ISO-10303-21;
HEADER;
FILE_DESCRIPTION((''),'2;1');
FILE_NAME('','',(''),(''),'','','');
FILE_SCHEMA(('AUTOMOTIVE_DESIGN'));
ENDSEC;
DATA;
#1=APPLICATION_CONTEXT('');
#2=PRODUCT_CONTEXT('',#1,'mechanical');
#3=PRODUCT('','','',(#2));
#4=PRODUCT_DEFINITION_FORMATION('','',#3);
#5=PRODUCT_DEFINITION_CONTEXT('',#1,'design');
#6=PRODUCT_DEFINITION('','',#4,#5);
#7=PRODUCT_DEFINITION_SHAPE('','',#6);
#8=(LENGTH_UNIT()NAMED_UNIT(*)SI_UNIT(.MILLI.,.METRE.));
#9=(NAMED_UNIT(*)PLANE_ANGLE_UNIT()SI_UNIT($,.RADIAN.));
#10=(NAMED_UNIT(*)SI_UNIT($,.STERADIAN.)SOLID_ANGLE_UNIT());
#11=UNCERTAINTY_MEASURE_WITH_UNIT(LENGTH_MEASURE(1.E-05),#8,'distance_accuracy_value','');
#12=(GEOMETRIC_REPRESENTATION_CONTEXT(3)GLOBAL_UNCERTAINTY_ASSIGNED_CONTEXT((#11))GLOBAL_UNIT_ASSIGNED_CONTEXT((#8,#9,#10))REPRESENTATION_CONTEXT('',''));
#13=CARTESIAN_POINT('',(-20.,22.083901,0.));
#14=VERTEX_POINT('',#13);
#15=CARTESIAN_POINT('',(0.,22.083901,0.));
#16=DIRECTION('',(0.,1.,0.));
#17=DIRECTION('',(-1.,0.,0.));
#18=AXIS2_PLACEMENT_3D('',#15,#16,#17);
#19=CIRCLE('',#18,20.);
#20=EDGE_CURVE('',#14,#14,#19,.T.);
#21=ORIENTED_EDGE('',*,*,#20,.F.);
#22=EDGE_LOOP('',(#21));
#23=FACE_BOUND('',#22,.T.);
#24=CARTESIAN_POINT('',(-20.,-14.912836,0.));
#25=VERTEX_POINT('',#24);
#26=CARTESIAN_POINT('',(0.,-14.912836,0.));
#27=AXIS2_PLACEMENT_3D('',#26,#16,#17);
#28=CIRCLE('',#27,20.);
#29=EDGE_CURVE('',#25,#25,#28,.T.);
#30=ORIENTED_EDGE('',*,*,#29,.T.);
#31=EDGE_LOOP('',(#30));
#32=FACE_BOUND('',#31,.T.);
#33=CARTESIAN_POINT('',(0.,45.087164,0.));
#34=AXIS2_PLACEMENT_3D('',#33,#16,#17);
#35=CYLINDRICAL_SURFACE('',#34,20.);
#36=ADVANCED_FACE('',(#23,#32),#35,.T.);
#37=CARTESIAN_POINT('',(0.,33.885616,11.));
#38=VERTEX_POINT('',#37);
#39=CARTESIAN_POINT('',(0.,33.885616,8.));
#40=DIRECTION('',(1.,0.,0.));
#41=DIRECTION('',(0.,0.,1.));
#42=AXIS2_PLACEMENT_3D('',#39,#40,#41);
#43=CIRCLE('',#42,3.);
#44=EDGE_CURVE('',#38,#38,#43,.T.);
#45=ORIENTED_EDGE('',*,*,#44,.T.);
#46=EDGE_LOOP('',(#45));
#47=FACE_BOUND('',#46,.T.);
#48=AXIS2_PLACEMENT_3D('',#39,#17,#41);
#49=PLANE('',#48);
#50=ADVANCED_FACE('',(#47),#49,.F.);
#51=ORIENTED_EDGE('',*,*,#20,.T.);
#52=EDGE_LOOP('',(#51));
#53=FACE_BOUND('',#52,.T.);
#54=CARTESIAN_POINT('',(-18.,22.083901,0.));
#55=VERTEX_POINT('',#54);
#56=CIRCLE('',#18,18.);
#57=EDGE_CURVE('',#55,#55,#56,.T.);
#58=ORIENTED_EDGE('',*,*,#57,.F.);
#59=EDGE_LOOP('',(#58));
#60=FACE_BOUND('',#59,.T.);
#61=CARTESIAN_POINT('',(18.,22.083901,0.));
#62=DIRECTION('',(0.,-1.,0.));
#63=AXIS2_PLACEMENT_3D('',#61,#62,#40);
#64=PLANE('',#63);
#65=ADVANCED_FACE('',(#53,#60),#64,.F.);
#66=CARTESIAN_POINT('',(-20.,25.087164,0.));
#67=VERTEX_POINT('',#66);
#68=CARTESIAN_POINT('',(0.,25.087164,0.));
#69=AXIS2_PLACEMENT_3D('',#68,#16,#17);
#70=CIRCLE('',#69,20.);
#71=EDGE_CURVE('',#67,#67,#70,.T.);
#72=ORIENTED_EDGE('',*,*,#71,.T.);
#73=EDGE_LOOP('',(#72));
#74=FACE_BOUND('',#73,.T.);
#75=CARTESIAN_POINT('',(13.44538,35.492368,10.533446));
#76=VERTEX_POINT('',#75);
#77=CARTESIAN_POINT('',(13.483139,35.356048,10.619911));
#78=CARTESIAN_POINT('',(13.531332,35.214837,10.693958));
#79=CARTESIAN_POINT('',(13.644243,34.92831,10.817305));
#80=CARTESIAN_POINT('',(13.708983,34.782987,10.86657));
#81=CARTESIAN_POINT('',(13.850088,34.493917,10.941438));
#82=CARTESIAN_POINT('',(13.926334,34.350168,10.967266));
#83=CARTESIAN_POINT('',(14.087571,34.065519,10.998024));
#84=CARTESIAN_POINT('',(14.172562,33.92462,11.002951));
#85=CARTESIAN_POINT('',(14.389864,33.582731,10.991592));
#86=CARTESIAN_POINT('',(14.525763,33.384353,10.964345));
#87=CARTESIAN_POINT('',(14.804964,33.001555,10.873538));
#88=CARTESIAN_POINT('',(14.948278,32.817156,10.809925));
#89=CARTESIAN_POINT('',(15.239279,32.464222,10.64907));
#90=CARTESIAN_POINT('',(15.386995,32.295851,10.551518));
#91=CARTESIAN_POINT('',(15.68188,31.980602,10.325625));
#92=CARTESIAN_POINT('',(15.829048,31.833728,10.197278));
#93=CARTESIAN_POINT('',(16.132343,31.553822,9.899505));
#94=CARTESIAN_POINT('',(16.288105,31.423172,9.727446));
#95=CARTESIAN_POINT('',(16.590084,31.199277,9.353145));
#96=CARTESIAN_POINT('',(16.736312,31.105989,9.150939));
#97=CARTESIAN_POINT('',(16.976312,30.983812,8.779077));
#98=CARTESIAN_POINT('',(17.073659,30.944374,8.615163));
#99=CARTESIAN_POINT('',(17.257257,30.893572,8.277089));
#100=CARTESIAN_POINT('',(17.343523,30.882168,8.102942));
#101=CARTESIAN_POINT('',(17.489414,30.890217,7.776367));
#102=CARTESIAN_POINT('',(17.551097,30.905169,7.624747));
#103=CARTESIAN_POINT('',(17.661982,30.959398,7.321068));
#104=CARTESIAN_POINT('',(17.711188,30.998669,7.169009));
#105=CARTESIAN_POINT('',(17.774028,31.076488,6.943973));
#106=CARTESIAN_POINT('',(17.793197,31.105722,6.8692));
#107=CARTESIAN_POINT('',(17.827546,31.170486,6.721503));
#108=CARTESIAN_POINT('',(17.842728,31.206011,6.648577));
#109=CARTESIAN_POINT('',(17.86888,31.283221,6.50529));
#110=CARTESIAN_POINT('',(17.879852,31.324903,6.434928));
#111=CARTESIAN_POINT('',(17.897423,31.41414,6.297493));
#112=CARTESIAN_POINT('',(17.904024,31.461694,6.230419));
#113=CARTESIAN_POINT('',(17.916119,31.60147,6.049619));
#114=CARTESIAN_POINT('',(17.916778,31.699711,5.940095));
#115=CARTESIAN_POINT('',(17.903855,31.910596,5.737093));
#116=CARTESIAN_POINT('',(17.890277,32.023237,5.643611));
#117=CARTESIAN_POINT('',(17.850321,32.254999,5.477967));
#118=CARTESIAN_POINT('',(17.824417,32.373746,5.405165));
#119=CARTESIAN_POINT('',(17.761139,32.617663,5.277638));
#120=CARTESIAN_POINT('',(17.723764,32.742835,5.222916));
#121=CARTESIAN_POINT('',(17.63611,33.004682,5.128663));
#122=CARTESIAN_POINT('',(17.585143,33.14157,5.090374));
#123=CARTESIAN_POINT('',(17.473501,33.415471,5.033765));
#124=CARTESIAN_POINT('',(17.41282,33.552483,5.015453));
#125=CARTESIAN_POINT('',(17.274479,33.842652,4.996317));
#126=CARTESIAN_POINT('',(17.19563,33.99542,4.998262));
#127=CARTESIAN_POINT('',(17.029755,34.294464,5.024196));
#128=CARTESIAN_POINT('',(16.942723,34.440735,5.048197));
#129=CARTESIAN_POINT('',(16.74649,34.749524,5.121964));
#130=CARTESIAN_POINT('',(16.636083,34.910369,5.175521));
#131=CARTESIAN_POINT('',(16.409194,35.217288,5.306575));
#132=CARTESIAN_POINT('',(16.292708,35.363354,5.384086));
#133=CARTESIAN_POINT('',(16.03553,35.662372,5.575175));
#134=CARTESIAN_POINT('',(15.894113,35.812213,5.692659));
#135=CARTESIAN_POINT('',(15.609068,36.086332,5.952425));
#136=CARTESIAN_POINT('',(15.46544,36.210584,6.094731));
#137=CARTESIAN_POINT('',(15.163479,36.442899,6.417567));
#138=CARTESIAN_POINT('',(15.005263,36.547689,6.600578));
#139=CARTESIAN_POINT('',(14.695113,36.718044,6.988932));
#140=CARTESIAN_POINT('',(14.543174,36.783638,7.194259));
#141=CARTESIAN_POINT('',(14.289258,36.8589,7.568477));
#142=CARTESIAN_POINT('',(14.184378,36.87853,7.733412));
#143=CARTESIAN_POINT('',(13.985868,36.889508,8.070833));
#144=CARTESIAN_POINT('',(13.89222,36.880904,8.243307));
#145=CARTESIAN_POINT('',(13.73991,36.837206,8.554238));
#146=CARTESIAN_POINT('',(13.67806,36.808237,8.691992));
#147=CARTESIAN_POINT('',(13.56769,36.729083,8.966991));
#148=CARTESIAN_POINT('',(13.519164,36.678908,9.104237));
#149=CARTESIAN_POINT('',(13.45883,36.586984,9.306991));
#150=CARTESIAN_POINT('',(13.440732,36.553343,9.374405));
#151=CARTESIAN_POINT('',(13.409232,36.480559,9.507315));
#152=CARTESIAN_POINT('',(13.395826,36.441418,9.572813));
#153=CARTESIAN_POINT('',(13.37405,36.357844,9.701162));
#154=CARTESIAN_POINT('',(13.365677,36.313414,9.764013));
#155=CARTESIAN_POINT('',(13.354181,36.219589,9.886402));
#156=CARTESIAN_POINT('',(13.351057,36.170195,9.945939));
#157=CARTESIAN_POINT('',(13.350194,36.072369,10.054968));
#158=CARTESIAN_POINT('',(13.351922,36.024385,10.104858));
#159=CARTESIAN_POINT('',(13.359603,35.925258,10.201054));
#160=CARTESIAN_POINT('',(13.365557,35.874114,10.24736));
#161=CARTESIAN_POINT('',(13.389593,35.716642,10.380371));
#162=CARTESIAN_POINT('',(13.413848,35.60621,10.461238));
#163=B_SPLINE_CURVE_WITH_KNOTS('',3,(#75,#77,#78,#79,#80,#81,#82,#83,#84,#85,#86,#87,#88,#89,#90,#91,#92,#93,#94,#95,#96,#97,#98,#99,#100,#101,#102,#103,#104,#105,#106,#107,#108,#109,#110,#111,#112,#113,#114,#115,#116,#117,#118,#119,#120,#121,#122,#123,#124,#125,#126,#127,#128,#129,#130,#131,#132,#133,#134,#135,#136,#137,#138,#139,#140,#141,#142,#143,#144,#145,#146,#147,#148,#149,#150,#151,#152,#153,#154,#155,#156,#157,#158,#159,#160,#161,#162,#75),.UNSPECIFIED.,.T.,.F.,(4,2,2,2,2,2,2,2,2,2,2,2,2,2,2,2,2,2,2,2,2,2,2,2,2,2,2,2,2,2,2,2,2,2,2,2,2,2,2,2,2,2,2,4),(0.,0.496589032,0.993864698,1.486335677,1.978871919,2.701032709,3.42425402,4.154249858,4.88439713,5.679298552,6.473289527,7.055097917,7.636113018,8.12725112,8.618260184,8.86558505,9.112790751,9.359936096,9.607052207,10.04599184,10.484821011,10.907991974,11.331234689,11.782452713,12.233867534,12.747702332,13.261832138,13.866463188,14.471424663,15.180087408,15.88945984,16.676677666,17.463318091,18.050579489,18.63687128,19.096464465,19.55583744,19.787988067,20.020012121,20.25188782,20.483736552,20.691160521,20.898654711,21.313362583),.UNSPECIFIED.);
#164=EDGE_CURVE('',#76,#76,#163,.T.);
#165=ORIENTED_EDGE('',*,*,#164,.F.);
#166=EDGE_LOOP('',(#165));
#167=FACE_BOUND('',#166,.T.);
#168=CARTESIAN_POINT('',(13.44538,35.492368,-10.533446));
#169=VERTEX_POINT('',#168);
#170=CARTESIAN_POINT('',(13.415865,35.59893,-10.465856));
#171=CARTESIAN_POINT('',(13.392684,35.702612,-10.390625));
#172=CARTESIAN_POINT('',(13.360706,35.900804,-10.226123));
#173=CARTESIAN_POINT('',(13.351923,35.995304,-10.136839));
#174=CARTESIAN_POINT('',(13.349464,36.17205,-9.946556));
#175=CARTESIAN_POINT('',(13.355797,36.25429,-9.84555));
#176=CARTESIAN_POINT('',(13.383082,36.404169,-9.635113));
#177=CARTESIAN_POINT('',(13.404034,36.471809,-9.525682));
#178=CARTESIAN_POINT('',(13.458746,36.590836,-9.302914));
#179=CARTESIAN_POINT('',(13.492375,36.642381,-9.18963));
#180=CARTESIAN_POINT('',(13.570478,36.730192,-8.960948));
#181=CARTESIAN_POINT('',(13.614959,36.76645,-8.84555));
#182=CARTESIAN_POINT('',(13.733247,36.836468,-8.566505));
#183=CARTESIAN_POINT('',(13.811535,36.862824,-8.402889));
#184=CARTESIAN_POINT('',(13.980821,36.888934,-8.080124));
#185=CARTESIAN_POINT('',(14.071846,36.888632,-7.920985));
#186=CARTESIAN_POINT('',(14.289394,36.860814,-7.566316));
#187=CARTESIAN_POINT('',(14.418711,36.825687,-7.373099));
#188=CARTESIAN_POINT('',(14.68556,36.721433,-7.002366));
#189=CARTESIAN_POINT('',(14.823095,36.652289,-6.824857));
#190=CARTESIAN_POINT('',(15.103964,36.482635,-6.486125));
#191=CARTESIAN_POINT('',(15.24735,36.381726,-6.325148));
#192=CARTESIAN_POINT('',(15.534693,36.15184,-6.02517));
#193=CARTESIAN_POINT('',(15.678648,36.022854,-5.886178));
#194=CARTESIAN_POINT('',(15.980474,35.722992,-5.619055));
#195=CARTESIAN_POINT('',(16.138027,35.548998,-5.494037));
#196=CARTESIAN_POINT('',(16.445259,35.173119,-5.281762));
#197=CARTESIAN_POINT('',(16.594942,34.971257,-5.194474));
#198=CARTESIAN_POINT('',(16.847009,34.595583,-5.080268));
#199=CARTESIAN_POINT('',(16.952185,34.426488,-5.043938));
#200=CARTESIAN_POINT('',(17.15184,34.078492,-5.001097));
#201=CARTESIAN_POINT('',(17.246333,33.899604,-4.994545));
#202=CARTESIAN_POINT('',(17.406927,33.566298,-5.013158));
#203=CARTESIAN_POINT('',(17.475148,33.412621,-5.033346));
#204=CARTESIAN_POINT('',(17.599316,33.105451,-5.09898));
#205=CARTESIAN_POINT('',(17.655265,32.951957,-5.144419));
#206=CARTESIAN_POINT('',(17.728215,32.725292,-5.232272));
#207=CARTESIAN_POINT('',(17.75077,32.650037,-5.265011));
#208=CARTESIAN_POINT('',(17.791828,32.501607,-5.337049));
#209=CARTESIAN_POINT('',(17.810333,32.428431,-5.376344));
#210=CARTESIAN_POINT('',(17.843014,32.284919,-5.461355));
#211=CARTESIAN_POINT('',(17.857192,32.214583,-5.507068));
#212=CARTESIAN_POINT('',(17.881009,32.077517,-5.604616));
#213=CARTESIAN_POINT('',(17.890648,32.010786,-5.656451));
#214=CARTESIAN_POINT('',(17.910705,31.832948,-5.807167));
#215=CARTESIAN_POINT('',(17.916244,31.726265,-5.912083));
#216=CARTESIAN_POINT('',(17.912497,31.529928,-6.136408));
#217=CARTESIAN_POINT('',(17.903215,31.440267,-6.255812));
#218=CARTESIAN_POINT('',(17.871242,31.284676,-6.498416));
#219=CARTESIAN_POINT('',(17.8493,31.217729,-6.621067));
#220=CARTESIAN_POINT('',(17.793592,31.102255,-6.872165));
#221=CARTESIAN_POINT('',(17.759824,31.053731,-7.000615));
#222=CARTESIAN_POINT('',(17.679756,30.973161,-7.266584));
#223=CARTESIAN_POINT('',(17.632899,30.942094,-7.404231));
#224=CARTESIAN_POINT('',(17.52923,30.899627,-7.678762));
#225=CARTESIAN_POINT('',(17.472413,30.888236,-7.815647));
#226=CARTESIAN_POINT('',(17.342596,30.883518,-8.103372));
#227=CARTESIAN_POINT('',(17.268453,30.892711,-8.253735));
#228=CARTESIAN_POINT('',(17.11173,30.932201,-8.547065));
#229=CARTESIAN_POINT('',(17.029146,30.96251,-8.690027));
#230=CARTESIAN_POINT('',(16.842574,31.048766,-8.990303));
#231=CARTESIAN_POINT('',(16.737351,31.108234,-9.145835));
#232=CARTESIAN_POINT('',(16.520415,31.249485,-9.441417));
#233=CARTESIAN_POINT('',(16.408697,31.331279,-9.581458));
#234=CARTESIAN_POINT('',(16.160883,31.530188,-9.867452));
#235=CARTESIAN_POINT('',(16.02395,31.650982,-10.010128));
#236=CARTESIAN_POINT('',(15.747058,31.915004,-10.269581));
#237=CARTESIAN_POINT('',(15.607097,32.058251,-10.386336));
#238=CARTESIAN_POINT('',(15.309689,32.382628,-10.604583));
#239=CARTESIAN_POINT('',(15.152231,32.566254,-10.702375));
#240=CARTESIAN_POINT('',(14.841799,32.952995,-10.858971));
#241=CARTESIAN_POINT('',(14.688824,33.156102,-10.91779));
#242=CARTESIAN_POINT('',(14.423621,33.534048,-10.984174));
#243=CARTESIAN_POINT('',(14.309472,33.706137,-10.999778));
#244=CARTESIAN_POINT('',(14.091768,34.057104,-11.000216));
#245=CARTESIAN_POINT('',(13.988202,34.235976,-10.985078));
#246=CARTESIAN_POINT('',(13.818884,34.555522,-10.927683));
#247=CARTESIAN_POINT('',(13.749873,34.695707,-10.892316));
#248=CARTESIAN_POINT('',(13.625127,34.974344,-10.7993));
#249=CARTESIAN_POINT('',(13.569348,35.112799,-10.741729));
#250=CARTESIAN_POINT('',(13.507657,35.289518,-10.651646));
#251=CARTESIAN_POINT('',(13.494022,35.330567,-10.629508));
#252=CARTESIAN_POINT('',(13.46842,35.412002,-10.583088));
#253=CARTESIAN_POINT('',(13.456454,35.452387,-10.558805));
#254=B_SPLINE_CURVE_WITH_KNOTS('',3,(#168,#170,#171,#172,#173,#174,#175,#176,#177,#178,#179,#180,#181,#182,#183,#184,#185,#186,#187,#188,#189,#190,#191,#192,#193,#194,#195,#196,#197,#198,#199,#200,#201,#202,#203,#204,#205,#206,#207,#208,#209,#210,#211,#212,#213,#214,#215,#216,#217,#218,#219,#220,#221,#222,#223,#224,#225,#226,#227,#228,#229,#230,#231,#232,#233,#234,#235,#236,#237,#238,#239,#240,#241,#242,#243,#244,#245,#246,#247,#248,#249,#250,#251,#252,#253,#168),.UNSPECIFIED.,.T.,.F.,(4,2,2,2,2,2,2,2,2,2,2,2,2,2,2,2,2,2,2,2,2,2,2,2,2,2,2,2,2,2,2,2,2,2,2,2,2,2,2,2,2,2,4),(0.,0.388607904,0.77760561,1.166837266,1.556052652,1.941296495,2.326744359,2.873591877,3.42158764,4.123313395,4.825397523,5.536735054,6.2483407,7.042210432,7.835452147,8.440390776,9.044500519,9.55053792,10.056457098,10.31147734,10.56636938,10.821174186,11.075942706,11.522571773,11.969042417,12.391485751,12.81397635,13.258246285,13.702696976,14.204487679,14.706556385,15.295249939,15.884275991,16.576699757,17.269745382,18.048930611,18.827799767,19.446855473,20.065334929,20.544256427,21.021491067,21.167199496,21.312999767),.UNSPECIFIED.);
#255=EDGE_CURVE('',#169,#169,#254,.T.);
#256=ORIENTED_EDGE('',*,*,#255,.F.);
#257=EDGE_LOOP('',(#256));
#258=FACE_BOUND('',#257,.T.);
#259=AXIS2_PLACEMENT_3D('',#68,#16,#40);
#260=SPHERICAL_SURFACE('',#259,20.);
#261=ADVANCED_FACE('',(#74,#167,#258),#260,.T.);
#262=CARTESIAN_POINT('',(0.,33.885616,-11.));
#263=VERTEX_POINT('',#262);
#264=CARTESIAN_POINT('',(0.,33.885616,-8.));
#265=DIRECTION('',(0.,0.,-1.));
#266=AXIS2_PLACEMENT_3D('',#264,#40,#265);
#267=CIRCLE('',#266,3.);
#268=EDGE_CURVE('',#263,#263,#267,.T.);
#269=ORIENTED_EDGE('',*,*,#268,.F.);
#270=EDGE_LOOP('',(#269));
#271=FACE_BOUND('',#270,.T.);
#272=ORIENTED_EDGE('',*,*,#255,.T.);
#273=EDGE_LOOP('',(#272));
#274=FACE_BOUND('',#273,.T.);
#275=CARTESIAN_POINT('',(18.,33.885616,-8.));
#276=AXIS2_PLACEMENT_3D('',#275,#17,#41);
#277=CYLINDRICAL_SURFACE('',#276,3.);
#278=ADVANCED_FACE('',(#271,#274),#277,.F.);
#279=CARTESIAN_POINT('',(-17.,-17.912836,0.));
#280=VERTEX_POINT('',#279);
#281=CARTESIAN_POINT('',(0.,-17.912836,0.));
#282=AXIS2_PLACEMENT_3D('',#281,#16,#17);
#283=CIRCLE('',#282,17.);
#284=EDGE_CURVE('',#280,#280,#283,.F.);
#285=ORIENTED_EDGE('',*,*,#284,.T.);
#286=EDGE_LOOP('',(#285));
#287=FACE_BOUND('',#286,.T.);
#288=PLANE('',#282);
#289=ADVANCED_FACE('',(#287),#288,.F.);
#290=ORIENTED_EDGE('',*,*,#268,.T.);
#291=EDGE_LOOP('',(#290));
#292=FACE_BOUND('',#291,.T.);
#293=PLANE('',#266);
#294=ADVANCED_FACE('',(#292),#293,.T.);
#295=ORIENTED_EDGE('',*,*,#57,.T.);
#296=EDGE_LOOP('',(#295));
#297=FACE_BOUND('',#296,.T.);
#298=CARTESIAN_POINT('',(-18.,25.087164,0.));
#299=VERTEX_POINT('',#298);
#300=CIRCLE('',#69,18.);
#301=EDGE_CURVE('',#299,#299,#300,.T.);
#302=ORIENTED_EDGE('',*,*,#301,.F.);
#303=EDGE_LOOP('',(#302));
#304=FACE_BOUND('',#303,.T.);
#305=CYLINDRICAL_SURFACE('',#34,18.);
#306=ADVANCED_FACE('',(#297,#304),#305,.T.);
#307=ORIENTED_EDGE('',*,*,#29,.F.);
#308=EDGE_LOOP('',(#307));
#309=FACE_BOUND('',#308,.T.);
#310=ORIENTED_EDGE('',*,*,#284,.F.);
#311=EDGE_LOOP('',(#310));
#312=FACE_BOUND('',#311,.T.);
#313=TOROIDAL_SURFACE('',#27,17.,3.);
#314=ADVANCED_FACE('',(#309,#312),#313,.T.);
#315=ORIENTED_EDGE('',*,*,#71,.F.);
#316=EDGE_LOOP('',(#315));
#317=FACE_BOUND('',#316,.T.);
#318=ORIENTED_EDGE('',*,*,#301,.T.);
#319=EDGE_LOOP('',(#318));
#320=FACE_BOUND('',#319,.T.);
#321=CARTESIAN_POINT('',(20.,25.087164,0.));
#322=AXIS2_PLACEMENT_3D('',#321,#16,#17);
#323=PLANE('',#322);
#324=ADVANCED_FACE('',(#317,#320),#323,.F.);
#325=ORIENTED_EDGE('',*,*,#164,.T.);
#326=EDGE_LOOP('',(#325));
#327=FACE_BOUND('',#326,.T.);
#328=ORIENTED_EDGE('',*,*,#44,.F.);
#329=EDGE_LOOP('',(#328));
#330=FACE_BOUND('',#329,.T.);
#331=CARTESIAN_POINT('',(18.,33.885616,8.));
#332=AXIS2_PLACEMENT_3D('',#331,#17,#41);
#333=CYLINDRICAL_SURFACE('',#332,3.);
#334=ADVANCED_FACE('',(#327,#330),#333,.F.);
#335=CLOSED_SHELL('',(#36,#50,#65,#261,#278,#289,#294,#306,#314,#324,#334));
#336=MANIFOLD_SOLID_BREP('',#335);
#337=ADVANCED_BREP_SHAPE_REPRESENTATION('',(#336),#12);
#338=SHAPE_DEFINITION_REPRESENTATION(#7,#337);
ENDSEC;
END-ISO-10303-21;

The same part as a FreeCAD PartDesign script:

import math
import FreeCAD as App
import Part
import Sketcher

V = App.Vector
Q = App.Units.Quantity


def edges_at(feature, points):
    """Names of the edges that pass closest to the given points."""
    edges = feature.Shape.Edges
    near = lambda p: min(range(len(edges)), key=lambda i: edges[i].distToShape(Part.Vertex(*p))[0])
    return sorted({f"Edge{near(p) + 1}" for p in points})

doc = App.newDocument("Part")
params = doc.addObject("Spreadsheet::Sheet", "Params")
for row, (alias, value) in enumerate([
    ("sketch1_radius", "20 mm"),
    ("sketch1_width", "2 mm"),
    ("sketch1_height", "63 mm"),
    ("revolution_angle", "360 deg"),
    ("fillet_radius", "3 mm"),
    ("sketch2_diameter", "6 mm"),
    ("pocket1_length", "18 mm"),
], start=1):
    params.set(f"A{row}", alias)
    params.set(f"B{row}", "=" + value)
    params.setAlias(f"B{row}", alias)

body = doc.addObject("PartDesign::Body", "Body")

sketch1 = body.newObject("Sketcher::SketchObject", "Sketch")
sketch1.AttachmentSupport = (doc.getObject("XY_Plane"), [""])
sketch1.MapMode = "FlatFace"
sketch1.addGeometry(Part.LineSegment(V(20, -17.9, 0), V(20, 22.1, 0)), False)
sketch1.addGeometry(Part.LineSegment(V(20, 22.1, 0), V(18, 22.1, 0)), False)
sketch1.addGeometry(Part.LineSegment(V(18, 22.1, 0), V(18, 25.1, 0)), False)
sketch1.addGeometry(Part.LineSegment(V(18, 25.1, 0), V(20, 25.1, 0)), False)
sketch1.addGeometry(Part.ArcOfCircle(Part.Circle(V(0, 25.1, 0), V(0, 0, 1), 20), math.radians(0), math.radians(90)), False)
sketch1.addGeometry(Part.LineSegment(V(0, 45.1, 0), V(0, -17.9, 0)), False)
sketch1.addGeometry(Part.LineSegment(V(0, -17.9, 0), V(20, -17.9, 0)), False)
sketch1.addConstraint(Sketcher.Constraint("Coincident", 0, 2, 1, 1))
sketch1.addConstraint(Sketcher.Constraint("Coincident", 1, 2, 2, 1))
sketch1.addConstraint(Sketcher.Constraint("Coincident", 2, 2, 3, 1))
sketch1.addConstraint(Sketcher.Constraint("Coincident", 3, 2, 4, 1))
sketch1.addConstraint(Sketcher.Constraint("Coincident", 4, 2, 5, 1))
sketch1.addConstraint(Sketcher.Constraint("Coincident", 5, 2, 6, 1))
sketch1.addConstraint(Sketcher.Constraint("Coincident", 6, 2, 0, 1))
sketch1.addConstraint(Sketcher.Constraint("Vertical", 0))
sketch1.addConstraint(Sketcher.Constraint("Horizontal", 1))
sketch1.addConstraint(Sketcher.Constraint("Vertical", 2))
sketch1.addConstraint(Sketcher.Constraint("Horizontal", 3))
sketch1.addConstraint(Sketcher.Constraint("Vertical", 5))
sketch1.addConstraint(Sketcher.Constraint("Horizontal", 6))
sketch1.addConstraint(Sketcher.Constraint("PointOnObject", 4, 3, -2))
sketch1.addConstraint(Sketcher.Constraint("PointOnObject", 4, 2, -2))
sketch1.addConstraint(Sketcher.Constraint("Horizontal", 4, 3, 2, 2))
sketch1.addConstraint(Sketcher.Constraint("Vertical", 0, 2, 3, 2))
sketch1.addConstraint(Sketcher.Constraint("Radius", 4, Q("20 mm")))
sketch1.addConstraint(Sketcher.Constraint("DistanceX", 1, 2, 1, 1, Q("2 mm")))
sketch1.addConstraint(Sketcher.Constraint("DistanceY", 5, 2, 5, 1, Q("63 mm")))
sketch1.addConstraint(Sketcher.Constraint("DistanceY", -1, 1, 0, 2, Q("22.083901 mm")))
sketch1.addConstraint(Sketcher.Constraint("DistanceY", 0, 1, 0, 2, Q("39.996736 mm")))
sketch1.setExpression("Constraints[17]", "Params.sketch1_radius")
sketch1.setExpression("Constraints[18]", "Params.sketch1_width")
sketch1.setExpression("Constraints[19]", "Params.sketch1_height")
revolution = body.newObject("PartDesign::Revolution", "Revolution")
revolution.Profile = sketch1
revolution.ReferenceAxis = (sketch1, ["V_Axis"])
revolution.setExpression("Angle", "Params.revolution_angle")
doc.recompute()

fillet = body.newObject("PartDesign::Fillet", "Fillet")
fillet.Base = (revolution, edges_at(revolution, [(-20, -17.913, 0)]))
fillet.setExpression("Radius", "Params.fillet_radius")

sketch2 = body.newObject("Sketcher::SketchObject", "Sketch001")
sketch2.AttachmentSupport = (doc.getObject("YZ_Plane"), [""])
sketch2.MapMode = "FlatFace"
sketch2.addGeometry(Part.Circle(V(33.9, -8, 0), V(0, 0, 1), 3), False)
sketch2.addGeometry(Part.Circle(V(33.9, 8, 0), V(0, 0, 1), 3), False)
sketch2.addConstraint(Sketcher.Constraint("Equal", 0, 1))
sketch2.addConstraint(Sketcher.Constraint("Symmetric", 0, 3, 1, 3, -1))
sketch2.addConstraint(Sketcher.Constraint("Diameter", 0, Q("6 mm")))
sketch2.addConstraint(Sketcher.Constraint("DistanceY", 0, 3, -1, 1, Q("8 mm")))
sketch2.addConstraint(Sketcher.Constraint("DistanceX", -1, 1, 0, 3, Q("33.885616 mm")))
sketch2.setExpression("Constraints[2]", "Params.sketch2_diameter")
pocket1 = body.newObject("PartDesign::Pocket", "Pocket")
pocket1.Profile = sketch2
pocket1.setExpression("Length", "Params.pocket1_length")
pocket1.Reversed = True

doc.recompute()
